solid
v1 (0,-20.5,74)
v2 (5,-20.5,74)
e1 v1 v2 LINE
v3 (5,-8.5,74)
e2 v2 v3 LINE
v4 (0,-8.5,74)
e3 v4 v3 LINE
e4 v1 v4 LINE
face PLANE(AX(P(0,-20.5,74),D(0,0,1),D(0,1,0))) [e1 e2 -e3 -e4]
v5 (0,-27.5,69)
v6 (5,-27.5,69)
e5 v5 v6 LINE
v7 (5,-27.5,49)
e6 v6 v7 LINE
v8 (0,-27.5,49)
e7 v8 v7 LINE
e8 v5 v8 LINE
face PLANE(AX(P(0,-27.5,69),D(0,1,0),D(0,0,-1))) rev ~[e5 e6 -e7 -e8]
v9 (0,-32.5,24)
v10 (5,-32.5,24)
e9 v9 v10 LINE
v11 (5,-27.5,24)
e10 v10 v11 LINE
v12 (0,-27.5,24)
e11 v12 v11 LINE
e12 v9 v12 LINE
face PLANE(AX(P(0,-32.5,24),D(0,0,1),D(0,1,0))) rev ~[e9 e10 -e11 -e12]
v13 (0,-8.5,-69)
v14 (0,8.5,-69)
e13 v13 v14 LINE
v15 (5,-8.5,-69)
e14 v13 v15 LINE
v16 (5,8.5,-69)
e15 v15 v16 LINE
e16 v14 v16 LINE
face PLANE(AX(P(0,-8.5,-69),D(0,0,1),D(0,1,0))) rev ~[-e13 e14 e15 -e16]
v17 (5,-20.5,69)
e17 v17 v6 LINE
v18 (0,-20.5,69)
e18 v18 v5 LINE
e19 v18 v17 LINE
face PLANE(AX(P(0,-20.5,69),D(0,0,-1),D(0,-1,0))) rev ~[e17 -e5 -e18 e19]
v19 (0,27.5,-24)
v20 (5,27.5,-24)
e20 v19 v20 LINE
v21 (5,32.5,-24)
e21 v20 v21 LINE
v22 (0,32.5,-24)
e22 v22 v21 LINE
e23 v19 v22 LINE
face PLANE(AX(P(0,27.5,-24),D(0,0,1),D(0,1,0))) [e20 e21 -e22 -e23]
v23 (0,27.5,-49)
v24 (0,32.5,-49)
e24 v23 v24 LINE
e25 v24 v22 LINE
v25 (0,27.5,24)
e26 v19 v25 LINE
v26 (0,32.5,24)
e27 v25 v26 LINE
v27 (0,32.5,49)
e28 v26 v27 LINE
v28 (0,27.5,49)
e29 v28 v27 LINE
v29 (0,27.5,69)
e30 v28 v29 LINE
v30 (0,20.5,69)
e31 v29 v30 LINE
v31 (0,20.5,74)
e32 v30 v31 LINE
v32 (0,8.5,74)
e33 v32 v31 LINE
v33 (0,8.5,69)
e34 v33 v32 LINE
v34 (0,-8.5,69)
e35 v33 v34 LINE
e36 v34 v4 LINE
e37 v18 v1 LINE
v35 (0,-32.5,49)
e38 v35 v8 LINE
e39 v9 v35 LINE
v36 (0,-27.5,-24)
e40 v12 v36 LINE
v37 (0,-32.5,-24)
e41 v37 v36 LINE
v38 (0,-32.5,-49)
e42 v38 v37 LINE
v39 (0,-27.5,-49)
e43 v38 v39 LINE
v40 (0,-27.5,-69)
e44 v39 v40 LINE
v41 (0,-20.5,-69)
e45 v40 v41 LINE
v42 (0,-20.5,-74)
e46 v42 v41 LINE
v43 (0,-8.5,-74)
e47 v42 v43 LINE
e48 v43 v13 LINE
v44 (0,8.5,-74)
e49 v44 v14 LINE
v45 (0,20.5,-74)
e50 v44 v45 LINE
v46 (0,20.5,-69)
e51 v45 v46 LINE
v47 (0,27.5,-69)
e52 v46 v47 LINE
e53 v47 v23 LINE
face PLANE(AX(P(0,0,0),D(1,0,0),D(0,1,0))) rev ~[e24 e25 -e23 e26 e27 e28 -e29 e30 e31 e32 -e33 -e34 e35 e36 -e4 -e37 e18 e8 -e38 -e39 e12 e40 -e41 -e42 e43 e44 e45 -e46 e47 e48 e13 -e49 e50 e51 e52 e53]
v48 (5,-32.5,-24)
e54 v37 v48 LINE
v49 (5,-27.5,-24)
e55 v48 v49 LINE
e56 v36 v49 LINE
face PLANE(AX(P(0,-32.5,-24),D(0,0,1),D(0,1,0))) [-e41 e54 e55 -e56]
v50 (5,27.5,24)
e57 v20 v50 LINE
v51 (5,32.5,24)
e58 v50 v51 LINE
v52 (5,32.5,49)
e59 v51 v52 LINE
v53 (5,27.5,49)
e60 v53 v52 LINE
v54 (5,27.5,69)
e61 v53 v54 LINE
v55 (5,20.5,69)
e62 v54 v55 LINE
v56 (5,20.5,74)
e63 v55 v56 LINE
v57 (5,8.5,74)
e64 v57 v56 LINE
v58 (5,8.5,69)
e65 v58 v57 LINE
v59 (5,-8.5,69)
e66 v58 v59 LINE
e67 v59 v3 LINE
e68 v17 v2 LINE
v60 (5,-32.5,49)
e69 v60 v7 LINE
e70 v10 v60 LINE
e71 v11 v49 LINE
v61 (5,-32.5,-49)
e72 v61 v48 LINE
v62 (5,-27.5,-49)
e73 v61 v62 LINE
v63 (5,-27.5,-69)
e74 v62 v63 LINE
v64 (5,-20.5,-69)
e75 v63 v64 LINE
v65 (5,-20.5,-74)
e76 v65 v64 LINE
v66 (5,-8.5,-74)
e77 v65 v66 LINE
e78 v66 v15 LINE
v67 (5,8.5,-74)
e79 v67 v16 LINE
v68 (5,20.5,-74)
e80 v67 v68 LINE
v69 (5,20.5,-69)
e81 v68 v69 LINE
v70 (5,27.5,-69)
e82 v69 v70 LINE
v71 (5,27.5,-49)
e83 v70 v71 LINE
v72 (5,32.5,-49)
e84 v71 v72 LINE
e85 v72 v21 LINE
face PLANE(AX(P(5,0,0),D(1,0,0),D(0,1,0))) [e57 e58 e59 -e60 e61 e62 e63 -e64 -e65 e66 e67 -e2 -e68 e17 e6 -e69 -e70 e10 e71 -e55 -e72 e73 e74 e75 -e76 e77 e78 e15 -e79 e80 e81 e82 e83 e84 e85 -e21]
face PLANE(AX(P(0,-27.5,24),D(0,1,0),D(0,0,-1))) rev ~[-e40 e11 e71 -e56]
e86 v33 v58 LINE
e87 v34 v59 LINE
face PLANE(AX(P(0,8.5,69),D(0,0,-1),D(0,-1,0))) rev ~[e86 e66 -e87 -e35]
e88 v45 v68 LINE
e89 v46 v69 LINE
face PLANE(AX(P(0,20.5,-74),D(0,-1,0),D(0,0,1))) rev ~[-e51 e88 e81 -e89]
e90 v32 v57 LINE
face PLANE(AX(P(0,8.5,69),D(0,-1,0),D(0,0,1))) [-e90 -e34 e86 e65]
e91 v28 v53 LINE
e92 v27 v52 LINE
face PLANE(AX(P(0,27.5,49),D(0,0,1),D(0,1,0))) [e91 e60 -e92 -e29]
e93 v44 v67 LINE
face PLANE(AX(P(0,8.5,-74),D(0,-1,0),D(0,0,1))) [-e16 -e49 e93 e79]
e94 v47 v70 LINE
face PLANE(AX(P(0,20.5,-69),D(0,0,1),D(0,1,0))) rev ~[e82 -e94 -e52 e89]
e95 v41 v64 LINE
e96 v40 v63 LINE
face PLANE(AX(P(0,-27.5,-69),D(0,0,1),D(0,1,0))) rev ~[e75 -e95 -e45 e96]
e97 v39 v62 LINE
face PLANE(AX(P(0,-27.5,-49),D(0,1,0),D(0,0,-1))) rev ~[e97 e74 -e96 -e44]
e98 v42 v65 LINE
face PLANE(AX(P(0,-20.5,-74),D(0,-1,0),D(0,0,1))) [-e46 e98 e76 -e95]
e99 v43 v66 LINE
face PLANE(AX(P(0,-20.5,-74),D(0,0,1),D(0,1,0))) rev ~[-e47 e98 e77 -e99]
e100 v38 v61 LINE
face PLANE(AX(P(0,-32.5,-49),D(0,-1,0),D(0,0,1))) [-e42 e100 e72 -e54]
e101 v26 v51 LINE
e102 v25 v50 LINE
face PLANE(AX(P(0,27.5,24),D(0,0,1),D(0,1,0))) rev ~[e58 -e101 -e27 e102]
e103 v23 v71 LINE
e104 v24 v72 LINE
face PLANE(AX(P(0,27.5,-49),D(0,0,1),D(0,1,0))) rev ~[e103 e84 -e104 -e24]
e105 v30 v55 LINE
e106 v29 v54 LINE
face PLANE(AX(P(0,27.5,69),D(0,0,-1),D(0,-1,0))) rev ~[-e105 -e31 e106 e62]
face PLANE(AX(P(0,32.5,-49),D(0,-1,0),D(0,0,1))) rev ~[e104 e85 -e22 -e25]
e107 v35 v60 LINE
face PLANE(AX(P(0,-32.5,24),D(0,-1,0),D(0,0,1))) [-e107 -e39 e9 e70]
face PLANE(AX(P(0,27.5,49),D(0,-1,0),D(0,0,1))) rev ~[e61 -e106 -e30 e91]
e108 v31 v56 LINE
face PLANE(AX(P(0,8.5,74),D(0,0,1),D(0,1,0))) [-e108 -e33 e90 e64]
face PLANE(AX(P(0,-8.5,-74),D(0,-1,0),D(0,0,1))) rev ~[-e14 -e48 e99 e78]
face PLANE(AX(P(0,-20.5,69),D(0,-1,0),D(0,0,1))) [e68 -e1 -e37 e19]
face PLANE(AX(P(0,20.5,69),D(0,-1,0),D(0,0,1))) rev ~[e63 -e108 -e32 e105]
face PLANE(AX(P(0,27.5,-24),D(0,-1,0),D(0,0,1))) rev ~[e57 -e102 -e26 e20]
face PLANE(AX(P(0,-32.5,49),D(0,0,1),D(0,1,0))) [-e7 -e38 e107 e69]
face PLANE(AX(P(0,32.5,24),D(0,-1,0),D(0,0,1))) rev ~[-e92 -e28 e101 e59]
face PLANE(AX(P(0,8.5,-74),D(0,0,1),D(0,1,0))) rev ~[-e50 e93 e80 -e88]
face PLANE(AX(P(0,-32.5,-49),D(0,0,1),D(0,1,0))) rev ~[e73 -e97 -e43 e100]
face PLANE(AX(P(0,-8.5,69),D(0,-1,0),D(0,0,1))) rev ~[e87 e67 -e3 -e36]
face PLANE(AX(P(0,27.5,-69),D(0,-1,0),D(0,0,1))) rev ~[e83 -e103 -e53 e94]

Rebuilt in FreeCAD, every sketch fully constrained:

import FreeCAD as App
import Part
import Sketcher

V = App.Vector
Q = App.Units.Quantity

doc = App.newDocument("Part")
body = doc.addObject("PartDesign::Body", "Body")

sketch1 = body.newObject("Sketcher::SketchObject", "Sketch")
sketch1.AttachmentSupport = (doc.getObject("YZ_Plane"), [""])
sketch1.MapMode = "FlatFace"
sketch1.addGeometry([
    Part.LineSegment(V(28, 69, 0), V(20, 69, 0)),
    Part.LineSegment(V(20, 69, 0), V(20, 74, 0)),
    Part.LineSegment(V(20, 74, 0), V(8, 74, 0)),
    Part.LineSegment(V(8, 74, 0), V(8, 69, 0)),
    Part.LineSegment(V(8, 69, 0), V(-8, 69, 0)),
    Part.LineSegment(V(-8, 69, 0), V(-8, 74, 0)),
    Part.LineSegment(V(-8, 74, 0), V(-20, 74, 0)),
    Part.LineSegment(V(-20, 74, 0), V(-20, 69, 0)),
    Part.LineSegment(V(-20, 69, 0), V(-28, 69, 0)),
    Part.LineSegment(V(-28, 69, 0), V(-28, 49, 0)),
    Part.LineSegment(V(-28, 49, 0), V(-32, 49, 0)),
    Part.LineSegment(V(-32, 49, 0), V(-32, 24, 0)),
    Part.LineSegment(V(-32, 24, 0), V(-28, 24, 0)),
    Part.LineSegment(V(-28, 24, 0), V(-28, -24, 0)),
    Part.LineSegment(V(-28, -24, 0), V(-32, -24, 0)),
    Part.LineSegment(V(-32, -24, 0), V(-32, -49, 0)),
    Part.LineSegment(V(-32, -49, 0), V(-28, -49, 0)),
    Part.LineSegment(V(-28, -49, 0), V(-28, -69, 0)),
    Part.LineSegment(V(-28, -69, 0), V(-20, -69, 0)),
    Part.LineSegment(V(-20, -69, 0), V(-20, -74, 0)),
    Part.LineSegment(V(-20, -74, 0), V(-8, -74, 0)),
    Part.LineSegment(V(-8, -74, 0), V(-8, -69, 0)),
    Part.LineSegment(V(-8, -69, 0), V(8, -69, 0)),
    Part.LineSegment(V(8, -69, 0), V(8, -74, 0)),
    Part.LineSegment(V(8, -74, 0), V(20, -74, 0)),
    Part.LineSegment(V(20, -74, 0), V(20, -69, 0)),
    Part.LineSegment(V(20, -69, 0), V(28, -69, 0)),
    Part.LineSegment(V(28, -69, 0), V(28, -49, 0)),
    Part.LineSegment(V(28, -49, 0), V(32, -49, 0)),
    Part.LineSegment(V(32, -49, 0), V(32, -24, 0)),
    Part.LineSegment(V(32, -24, 0), V(28, -24, 0)),
    Part.LineSegment(V(28, -24, 0), V(28, 24, 0)),
    Part.LineSegment(V(28, 24, 0), V(32, 24, 0)),
    Part.LineSegment(V(32, 24, 0), V(32, 49, 0)),
    Part.LineSegment(V(32, 49, 0), V(28, 49, 0)),
    Part.LineSegment(V(28, 49, 0), V(28, 69, 0)),
], False)
sketch1.addConstraint([
    Sketcher.Constraint("Coincident", 0, 2, 1, 1),
    Sketcher.Constraint("Coincident", 1, 2, 2, 1),
    Sketcher.Constraint("Coincident", 2, 2, 3, 1),
    Sketcher.Constraint("Coincident", 3, 2, 4, 1),
    Sketcher.Constraint("Coincident", 4, 2, 5, 1),
    Sketcher.Constraint("Coincident", 5, 2, 6, 1),
    Sketcher.Constraint("Coincident", 6, 2, 7, 1),
    Sketcher.Constraint("Coincident", 7, 2, 8, 1),
    Sketcher.Constraint("Coincident", 8, 2, 9, 1),
    Sketcher.Constraint("Coincident", 9, 2, 10, 1),
    Sketcher.Constraint("Coincident", 10, 2, 11, 1),
    Sketcher.Constraint("Coincident", 11, 2, 12, 1),
    Sketcher.Constraint("Coincident", 12, 2, 13, 1),
    Sketcher.Constraint("Coincident", 13, 2, 14, 1),
    Sketcher.Constraint("Coincident", 14, 2, 15, 1),
    Sketcher.Constraint("Coincident", 15, 2, 16, 1),
    Sketcher.Constraint("Coincident", 16, 2, 17, 1),
    Sketcher.Constraint("Coincident", 17, 2, 18, 1),
    Sketcher.Constraint("Coincident", 18, 2, 19, 1),
    Sketcher.Constraint("Coincident", 19, 2, 20, 1),
    Sketcher.Constraint("Coincident", 20, 2, 21, 1),
    Sketcher.Constraint("Coincident", 21, 2, 22, 1),
    Sketcher.Constraint("Coincident", 22, 2, 23, 1),
    Sketcher.Constraint("Coincident", 23, 2, 24, 1),
    Sketcher.Constraint("Coincident", 24, 2, 25, 1),
    Sketcher.Constraint("Coincident", 25, 2, 26, 1),
    Sketcher.Constraint("Coincident", 26, 2, 27, 1),
    Sketcher.Constraint("Coincident", 27, 2, 28, 1),
    Sketcher.Constraint("Coincident", 28, 2, 29, 1),
    Sketcher.Constraint("Coincident", 29, 2, 30, 1),
    Sketcher.Constraint("Coincident", 30, 2, 31, 1),
    Sketcher.Constraint("Coincident", 31, 2, 32, 1),
    Sketcher.Constraint("Coincident", 32, 2, 33, 1),
    Sketcher.Constraint("Coincident", 33, 2, 34, 1),
    Sketcher.Constraint("Coincident", 34, 2, 35, 1),
    Sketcher.Constraint("Coincident", 35, 2, 0, 1),
    Sketcher.Constraint("Horizontal", 0),
    Sketcher.Constraint("Vertical", 1),
    Sketcher.Constraint("Horizontal", 2),
    Sketcher.Constraint("Vertical", 3),
    Sketcher.Constraint("Horizontal", 4),
    Sketcher.Constraint("Vertical", 5),
    Sketcher.Constraint("Horizontal", 6),
    Sketcher.Constraint("Vertical", 7),
    Sketcher.Constraint("Horizontal", 8),
    Sketcher.Constraint("Vertical", 9),
    Sketcher.Constraint("Horizontal", 10),
    Sketcher.Constraint("Vertical", 11),
    Sketcher.Constraint("Horizontal", 12),
    Sketcher.Constraint("Vertical", 13),
    Sketcher.Constraint("Horizontal", 14),
    Sketcher.Constraint("Vertical", 15),
    Sketcher.Constraint("Horizontal", 16),
    Sketcher.Constraint("Vertical", 17),
    Sketcher.Constraint("Horizontal", 18),
    Sketcher.Constraint("Vertical", 19),
    Sketcher.Constraint("Horizontal", 20),
    Sketcher.Constraint("Vertical", 21),
    Sketcher.Constraint("Horizontal", 22),
    Sketcher.Constraint("Vertical", 23),
    Sketcher.Constraint("Horizontal", 24),
    Sketcher.Constraint("Vertical", 25),
    Sketcher.Constraint("Horizontal", 26),
    Sketcher.Constraint("Vertical", 27),
    Sketcher.Constraint("Horizontal", 28),
    Sketcher.Constraint("Vertical", 29),
    Sketcher.Constraint("Horizontal", 30),
    Sketcher.Constraint("Vertical", 31),
    Sketcher.Constraint("Horizontal", 32),
    Sketcher.Constraint("Vertical", 33),
    Sketcher.Constraint("Horizontal", 34),
    Sketcher.Constraint("Vertical", 35),
    Sketcher.Constraint("Symmetric", 0, 2, 18, 2, -1, 1),
    Sketcher.Constraint("Symmetric", 2, 2, 20, 2, -1, 1),
    Sketcher.Constraint("Symmetric", 4, 2, 22, 2, -1, 1),
    Sketcher.Constraint("Symmetric", 6, 2, 24, 2, -1, 1),
    Sketcher.Constraint("Symmetric", 8, 2, 26, 2, -1, 1),
    Sketcher.Constraint("Symmetric", 10, 2, 28, 2, -1, 1),
    Sketcher.Constraint("Symmetric", 12, 2, 30, 2, -1, 1),
    Sketcher.Constraint("Symmetric", 14, 2, 32, 2, -1, 1),
    Sketcher.Constraint("Symmetric", 16, 2, 34, 2, -1, 1),
    Sketcher.Constraint("Symmetric", 2, 2, 5, 2, -2),
    Sketcher.Constraint("Symmetric", 0, 2, 7, 2, -2),
    Sketcher.Constraint("Symmetric", 16, 2, 27, 2, -2),
    Sketcher.Constraint("Symmetric", 14, 2, 29, 2, -2),
    Sketcher.Constraint("Horizontal", 0, 2, 3, 2),
    Sketcher.Constraint("Vertical", 9, 2, 12, 2),
    Sketcher.Constraint("Equal", 34, 1),
    Sketcher.Constraint("DistanceX", 0, 2, 0, 1, Q("7 mm")),
    Sketcher.Constraint("DistanceX", 2, 2, 2, 1, Q("12 mm")),
    Sketcher.Constraint("DistanceX", 4, 2, 4, 1, Q("17 mm")),
    Sketcher.Constraint("DistanceX", 10, 2, 10, 1, Q("5 mm")),
    Sketcher.Constraint("DistanceY", 9, 2, 9, 1, Q("20 mm")),
    Sketcher.Constraint("DistanceY", 11, 2, 11, 1, Q("25 mm")),
    Sketcher.Constraint("DistanceY", 13, 2, 13, 1, Q("48 mm")),
])
pad1 = body.newObject("PartDesign::Pad", "Pad")
pad1.Profile = sketch1
pad1.Length = 5

doc.recompute()
